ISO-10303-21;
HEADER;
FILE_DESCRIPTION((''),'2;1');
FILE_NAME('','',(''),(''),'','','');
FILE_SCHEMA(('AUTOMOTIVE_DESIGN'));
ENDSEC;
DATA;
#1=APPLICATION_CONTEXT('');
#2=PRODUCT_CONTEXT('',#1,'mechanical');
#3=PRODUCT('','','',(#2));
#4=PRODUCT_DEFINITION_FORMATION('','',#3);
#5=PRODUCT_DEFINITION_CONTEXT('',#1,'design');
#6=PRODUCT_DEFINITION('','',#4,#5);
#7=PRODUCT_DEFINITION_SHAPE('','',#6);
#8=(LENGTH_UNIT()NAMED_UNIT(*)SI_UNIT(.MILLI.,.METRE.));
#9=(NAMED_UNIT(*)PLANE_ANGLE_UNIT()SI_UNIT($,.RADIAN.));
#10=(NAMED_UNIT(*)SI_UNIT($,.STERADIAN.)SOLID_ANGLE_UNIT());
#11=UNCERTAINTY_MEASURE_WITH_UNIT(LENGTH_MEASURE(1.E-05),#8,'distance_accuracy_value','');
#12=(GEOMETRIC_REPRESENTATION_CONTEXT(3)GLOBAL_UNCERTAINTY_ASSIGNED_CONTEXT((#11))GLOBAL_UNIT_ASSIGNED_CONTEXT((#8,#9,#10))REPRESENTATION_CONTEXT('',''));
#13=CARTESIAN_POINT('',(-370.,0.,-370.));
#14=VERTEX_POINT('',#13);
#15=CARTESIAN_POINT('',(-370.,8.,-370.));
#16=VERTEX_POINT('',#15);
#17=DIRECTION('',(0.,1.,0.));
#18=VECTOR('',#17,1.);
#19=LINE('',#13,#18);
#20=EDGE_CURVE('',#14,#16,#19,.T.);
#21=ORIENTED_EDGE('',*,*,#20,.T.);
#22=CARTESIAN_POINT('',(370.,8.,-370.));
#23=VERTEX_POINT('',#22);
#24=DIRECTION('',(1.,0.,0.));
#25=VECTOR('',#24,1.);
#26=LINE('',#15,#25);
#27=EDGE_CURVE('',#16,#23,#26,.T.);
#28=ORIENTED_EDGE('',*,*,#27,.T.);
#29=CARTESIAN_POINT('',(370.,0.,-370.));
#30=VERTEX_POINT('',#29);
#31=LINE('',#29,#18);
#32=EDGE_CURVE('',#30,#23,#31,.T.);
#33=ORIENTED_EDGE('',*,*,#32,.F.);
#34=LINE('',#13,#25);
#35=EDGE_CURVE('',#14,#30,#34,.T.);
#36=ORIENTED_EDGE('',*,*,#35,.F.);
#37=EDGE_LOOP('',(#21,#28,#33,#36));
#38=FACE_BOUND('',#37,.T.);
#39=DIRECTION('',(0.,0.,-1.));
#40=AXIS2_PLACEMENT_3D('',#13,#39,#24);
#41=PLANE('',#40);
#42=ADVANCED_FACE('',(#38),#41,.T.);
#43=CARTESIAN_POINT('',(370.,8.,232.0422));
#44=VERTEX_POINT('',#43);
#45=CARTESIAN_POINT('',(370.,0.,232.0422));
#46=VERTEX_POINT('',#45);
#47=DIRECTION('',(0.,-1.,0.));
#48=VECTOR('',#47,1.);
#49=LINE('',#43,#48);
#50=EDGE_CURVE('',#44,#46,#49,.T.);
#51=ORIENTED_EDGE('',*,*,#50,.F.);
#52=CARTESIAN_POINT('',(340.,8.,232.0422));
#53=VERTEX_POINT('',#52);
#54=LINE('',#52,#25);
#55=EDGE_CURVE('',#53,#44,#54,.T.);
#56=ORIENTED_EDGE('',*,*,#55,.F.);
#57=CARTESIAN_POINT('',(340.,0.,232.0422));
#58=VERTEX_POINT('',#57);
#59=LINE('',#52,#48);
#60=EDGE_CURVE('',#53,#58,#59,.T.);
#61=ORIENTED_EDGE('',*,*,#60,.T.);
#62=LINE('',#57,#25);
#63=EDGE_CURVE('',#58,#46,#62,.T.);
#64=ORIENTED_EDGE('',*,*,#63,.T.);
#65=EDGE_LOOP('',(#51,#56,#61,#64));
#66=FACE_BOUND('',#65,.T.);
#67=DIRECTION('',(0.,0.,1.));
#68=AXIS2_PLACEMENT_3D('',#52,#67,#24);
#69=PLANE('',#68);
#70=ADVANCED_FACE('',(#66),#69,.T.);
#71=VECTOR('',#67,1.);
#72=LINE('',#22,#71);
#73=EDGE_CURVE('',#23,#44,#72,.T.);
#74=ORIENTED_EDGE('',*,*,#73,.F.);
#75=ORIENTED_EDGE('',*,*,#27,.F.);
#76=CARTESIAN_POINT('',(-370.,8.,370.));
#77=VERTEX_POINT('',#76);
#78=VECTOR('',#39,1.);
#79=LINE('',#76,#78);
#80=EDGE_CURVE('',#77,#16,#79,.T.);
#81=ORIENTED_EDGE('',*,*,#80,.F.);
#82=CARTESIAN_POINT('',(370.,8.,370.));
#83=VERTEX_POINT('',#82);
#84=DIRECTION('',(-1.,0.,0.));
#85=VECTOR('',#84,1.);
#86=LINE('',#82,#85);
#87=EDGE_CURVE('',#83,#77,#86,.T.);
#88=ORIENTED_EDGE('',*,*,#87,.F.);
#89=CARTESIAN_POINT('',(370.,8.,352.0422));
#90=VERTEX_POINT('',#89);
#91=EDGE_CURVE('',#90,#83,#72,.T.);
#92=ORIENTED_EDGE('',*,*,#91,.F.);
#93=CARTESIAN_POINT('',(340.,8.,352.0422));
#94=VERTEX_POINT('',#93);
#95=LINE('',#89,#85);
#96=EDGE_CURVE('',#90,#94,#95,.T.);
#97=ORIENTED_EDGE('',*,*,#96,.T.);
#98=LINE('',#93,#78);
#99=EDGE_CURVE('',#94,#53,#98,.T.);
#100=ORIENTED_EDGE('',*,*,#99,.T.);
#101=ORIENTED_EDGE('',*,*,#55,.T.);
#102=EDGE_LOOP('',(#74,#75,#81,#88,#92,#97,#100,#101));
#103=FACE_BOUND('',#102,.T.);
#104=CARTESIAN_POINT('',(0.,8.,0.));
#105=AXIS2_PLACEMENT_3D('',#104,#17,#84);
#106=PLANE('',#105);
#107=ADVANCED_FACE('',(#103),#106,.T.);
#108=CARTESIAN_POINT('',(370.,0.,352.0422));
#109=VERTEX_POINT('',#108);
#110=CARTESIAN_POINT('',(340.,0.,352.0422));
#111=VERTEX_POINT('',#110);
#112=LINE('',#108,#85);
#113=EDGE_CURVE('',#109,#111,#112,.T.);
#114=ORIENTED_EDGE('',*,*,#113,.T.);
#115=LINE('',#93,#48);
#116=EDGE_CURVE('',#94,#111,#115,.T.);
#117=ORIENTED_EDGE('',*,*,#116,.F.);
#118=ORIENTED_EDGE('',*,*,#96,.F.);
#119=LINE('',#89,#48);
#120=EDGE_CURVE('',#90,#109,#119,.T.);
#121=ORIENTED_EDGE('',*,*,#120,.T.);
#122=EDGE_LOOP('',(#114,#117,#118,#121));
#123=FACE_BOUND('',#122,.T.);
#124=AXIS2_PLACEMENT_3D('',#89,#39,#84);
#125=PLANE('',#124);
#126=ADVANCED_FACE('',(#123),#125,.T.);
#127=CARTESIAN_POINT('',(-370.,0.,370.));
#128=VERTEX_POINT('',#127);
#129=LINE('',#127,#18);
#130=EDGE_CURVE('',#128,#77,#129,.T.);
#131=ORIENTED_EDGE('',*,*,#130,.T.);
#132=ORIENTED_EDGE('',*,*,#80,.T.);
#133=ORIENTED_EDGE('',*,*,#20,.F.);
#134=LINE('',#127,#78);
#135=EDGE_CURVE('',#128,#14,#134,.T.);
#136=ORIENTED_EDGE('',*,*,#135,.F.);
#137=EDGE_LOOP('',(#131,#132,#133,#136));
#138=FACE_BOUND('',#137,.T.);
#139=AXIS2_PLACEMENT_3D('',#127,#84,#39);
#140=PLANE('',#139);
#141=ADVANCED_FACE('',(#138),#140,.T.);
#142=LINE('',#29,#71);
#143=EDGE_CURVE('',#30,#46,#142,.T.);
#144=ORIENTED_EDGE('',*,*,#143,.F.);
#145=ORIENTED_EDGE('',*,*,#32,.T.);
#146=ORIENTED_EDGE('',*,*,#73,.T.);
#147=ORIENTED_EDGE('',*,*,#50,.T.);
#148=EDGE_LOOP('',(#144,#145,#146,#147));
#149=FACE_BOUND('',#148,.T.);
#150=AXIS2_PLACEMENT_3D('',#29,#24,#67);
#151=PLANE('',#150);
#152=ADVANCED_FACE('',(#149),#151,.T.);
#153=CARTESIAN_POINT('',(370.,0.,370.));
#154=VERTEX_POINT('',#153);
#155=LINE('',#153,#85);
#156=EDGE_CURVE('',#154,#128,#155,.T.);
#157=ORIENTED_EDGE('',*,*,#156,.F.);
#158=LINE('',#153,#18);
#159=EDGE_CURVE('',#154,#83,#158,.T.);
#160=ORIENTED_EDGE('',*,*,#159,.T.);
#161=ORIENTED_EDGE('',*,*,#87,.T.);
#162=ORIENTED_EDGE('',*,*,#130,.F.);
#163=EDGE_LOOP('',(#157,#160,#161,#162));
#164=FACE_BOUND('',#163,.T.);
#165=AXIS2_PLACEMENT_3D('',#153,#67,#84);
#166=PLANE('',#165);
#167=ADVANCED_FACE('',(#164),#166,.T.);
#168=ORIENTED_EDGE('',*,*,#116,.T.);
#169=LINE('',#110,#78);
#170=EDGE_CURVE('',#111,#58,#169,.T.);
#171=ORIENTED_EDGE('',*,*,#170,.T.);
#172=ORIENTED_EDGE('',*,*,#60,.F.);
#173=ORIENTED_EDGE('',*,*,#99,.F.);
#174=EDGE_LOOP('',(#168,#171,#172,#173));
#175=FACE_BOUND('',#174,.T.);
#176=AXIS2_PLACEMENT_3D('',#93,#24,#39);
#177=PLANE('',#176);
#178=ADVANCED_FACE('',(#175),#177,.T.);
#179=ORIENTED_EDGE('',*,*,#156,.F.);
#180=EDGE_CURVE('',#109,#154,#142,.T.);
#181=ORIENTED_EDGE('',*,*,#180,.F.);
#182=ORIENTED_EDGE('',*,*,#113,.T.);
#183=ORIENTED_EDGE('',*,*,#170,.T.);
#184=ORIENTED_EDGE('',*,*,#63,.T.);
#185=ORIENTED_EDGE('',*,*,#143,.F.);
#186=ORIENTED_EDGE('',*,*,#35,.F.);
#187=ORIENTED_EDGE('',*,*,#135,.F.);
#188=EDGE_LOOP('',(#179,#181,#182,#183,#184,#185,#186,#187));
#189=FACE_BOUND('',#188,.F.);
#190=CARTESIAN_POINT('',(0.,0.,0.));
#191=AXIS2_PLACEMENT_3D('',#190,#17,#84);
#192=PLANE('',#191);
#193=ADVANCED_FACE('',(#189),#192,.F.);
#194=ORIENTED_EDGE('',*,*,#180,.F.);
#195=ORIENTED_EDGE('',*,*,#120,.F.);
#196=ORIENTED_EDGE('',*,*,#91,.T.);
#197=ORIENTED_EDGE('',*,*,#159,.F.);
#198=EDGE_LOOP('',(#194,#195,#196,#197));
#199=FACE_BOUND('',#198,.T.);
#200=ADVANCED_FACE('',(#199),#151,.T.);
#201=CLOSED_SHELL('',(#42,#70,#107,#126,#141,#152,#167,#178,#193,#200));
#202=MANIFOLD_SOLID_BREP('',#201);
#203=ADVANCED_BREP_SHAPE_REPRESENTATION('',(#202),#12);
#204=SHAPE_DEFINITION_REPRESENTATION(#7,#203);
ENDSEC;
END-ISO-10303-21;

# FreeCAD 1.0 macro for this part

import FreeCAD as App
import Part
import Sketcher


def add_polygon(sketch, points):
    """Adds a closed chain of lines whose ends are joined by coincident constraints."""
    first, n = sketch.GeometryCount, len(points)
    for a, b in zip(points, points[1:] + points[:1]):
        sketch.addGeometry(Part.LineSegment(App.Vector(*a, 0), App.Vector(*b, 0)), False)
    for i in range(n):
        sketch.addConstraint(Sketcher.Constraint("Coincident", first + i, 2, first + (i + 1) % n, 1))

doc = App.newDocument("Part")
params = doc.addObject("Spreadsheet::Sheet", "Params")
for row, (alias, value) in enumerate([
    ("sketch1_width", "740 mm"),
    ("pad1_length", "8 mm"),
    ("sketch2_width", "30 mm"),
    ("sketch2_height", "120 mm"),
    ("pocket1_length", "8 mm"),
], start=1):
    params.set(f"A{row}", alias)
    params.set(f"B{row}", "=" + value)
    params.setAlias(f"B{row}", alias)

body = doc.addObject("PartDesign::Body", "Body")

# Sketch on XZ plane
sketch1 = body.newObject("Sketcher::SketchObject", "Sketch")
sketch1.AttachmentSupport = (doc.getObject("XZ_Plane"), [""])
sketch1.MapMode = "FlatFace"
add_polygon(sketch1, [(-370, 370), (370, 370), (370, -370), (-370, -370)])  # lines 0-3
sketch1.addConstraint(Sketcher.Constraint("Horizontal", 0))
sketch1.addConstraint(Sketcher.Constraint("Vertical", 1))
sketch1.addConstraint(Sketcher.Constraint("Horizontal", 2))
sketch1.addConstraint(Sketcher.Constraint("Vertical", 3))
sketch1.addConstraint(Sketcher.Constraint("Symmetric", 0, 2, 2, 2, -1, 1))
sketch1.addConstraint(Sketcher.Constraint("Equal", 2, 1))
sketch1.addConstraint(Sketcher.Constraint("DistanceX", 0, 1, 0, 2, 740.0))
sketch1.setExpression("Constraints[10]", "Params.sketch1_width")
pad1 = body.newObject("PartDesign::Pad", "Pad")
pad1.Profile = sketch1
pad1.setExpression("Length", "Params.pad1_length")
pad1.Reversed = True

# Sketch on XZ plane
sketch2 = body.newObject("Sketcher::SketchObject", "Sketch001")
sketch2.AttachmentSupport = (doc.getObject("XZ_Plane"), [""])
sketch2.MapMode = "FlatFace"
sketch2.AttachmentOffset = App.Placement(App.Vector(0, 0, -8), App.Rotation())
add_polygon(sketch2, [(340, 352), (370, 352), (370, 232), (340, 232)])  # lines 0-3
sketch2.addConstraint(Sketcher.Constraint("Horizontal", 0))
sketch2.addConstraint(Sketcher.Constraint("Vertical", 1))
sketch2.addConstraint(Sketcher.Constraint("Horizontal", 2))
sketch2.addConstraint(Sketcher.Constraint("Vertical", 3))
sketch2.addConstraint(Sketcher.Constraint("DistanceX", 0, 1, 0, 2, 30.0))
sketch2.addConstraint(Sketcher.Constraint("DistanceY", 1, 2, 1, 1, 120.0))
sketch2.addConstraint(Sketcher.Constraint("DistanceX", -1, 1, 0, 2, 370.0))
sketch2.addConstraint(Sketcher.Constraint("DistanceY", -1, 1, 0, 2, 352.0422))
sketch2.setExpression("Constraints[8]", "Params.sketch2_width")
sketch2.setExpression("Constraints[9]", "Params.sketch2_height")
pocket1 = body.newObject("PartDesign::Pocket", "Pocket")
pocket1.Profile = sketch2
pocket1.setExpression("Length", "Params.pocket1_length")
pocket1.Reversed = True

doc.recompute()
